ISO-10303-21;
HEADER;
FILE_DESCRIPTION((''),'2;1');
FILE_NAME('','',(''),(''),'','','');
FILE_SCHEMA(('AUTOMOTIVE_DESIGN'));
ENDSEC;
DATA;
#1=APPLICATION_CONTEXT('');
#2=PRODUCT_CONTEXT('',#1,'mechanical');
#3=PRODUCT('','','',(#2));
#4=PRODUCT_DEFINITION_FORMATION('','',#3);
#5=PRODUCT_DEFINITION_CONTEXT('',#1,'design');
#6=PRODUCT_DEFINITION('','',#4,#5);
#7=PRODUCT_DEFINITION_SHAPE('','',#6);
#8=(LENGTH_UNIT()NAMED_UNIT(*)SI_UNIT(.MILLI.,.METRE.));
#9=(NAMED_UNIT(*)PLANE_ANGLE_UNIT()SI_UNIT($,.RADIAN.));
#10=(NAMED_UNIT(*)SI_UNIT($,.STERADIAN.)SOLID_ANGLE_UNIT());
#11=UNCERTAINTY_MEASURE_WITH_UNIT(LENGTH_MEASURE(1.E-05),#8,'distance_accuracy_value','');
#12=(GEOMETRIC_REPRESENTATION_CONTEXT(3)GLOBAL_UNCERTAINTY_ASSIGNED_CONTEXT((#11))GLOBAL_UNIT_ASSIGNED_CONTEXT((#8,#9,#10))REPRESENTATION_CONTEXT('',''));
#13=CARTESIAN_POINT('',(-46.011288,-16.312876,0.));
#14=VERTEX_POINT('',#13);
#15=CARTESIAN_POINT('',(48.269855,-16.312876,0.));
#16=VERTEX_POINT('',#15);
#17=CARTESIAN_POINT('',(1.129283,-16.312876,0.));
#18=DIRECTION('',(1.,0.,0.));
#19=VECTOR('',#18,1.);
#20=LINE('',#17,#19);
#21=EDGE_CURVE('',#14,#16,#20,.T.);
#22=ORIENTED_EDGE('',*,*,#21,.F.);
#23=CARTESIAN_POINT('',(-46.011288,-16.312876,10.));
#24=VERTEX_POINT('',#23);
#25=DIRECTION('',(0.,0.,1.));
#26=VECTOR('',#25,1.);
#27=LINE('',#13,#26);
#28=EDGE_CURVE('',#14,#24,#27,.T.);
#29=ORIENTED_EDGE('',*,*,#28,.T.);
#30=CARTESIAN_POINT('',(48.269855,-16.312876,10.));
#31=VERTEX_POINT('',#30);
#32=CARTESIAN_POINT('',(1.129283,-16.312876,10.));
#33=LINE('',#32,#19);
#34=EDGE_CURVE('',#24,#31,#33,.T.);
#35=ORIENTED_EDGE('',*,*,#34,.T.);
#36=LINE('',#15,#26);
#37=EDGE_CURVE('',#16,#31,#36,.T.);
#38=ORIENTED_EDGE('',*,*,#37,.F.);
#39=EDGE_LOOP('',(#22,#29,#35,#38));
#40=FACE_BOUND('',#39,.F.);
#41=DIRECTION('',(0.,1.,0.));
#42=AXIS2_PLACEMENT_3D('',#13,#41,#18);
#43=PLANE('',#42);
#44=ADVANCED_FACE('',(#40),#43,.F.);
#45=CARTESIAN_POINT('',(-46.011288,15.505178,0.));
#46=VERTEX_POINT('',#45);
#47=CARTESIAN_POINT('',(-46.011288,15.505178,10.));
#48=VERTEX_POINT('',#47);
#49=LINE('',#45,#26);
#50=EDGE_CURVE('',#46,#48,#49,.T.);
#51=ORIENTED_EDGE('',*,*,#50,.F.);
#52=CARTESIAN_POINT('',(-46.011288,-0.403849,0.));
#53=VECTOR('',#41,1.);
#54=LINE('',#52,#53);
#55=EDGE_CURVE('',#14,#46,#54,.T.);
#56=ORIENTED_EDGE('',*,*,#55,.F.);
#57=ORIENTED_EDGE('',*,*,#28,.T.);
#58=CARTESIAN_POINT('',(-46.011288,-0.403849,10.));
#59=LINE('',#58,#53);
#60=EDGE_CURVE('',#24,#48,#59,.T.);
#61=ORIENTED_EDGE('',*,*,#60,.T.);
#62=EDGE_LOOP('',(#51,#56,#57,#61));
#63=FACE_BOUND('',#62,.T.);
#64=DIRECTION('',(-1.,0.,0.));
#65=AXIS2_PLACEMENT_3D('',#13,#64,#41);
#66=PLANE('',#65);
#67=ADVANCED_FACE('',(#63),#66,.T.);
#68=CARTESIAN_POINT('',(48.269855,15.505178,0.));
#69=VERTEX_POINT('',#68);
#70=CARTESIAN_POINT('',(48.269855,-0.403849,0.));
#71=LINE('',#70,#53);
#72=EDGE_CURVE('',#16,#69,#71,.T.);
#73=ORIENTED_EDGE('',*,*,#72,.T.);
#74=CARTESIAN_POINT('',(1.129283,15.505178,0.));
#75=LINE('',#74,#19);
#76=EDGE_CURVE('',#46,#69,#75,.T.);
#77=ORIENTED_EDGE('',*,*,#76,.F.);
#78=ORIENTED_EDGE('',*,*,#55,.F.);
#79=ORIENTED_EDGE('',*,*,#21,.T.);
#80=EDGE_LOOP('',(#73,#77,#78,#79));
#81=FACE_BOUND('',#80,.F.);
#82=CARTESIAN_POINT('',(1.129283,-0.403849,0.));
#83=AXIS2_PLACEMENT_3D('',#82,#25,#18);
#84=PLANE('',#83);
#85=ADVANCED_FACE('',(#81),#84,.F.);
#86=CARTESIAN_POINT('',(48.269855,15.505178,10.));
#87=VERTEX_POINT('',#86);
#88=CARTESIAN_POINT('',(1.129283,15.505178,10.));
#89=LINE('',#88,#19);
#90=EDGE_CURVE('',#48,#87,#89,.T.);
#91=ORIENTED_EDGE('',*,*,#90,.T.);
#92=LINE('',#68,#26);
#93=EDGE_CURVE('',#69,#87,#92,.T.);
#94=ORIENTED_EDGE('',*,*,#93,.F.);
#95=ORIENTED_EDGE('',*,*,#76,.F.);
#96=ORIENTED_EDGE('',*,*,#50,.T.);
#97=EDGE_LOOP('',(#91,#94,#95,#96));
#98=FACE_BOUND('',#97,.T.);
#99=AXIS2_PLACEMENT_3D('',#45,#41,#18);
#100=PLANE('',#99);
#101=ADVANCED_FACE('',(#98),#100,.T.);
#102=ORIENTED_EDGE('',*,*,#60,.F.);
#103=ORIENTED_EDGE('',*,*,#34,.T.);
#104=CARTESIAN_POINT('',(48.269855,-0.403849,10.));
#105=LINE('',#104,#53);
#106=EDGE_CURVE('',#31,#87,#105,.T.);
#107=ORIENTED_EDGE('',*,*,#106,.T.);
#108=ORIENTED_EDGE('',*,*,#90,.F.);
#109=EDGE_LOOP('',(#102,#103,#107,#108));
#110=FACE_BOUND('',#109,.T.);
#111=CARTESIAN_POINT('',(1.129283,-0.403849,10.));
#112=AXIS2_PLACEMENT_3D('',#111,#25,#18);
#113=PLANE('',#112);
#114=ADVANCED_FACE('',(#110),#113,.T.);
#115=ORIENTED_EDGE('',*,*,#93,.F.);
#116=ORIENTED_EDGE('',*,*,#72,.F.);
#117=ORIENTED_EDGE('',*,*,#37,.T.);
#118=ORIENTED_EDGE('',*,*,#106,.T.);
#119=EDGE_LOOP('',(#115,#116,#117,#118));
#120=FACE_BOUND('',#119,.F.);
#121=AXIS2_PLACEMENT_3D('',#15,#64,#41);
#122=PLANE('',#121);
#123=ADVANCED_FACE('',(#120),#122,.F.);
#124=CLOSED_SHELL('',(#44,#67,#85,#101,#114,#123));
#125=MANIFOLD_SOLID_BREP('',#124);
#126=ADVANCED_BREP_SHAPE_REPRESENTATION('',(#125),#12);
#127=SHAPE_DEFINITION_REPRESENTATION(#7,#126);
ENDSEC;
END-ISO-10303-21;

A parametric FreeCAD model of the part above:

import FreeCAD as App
import Part
import Sketcher

V = App.Vector
Q = App.Units.Quantity


def add_polygon(sketch, points):
    """Adds a closed chain of lines whose ends are joined by coincident constraints."""
    first, n = sketch.GeometryCount, len(points)
    for a, b in zip(points, points[1:] + points[:1]):
        sketch.addGeometry(Part.LineSegment(App.Vector(*a, 0), App.Vector(*b, 0)), False)
    for i in range(n):
        sketch.addConstraint(Sketcher.Constraint("Coincident", first + i, 2, first + (i + 1) % n, 1))

doc = App.newDocument("Part")
body = doc.addObject("PartDesign::Body", "Body")

# Sketch on XY plane
sketch1 = body.newObject("Sketcher::SketchObject", "Sketch")
sketch1.AttachmentSupport = (doc.getObject("XY_Plane"), [""])
sketch1.MapMode = "FlatFace"
add_polygon(sketch1, [(-46, 16), (-46, -16), (48, -16), (48, 16)])  # lines 0-3
sketch1.addConstraint([
    Sketcher.Constraint("Vertical", 0),
    Sketcher.Constraint("Horizontal", 1),
    Sketcher.Constraint("Vertical", 2),
    Sketcher.Constraint("Horizontal", 3),
    Sketcher.Constraint("DistanceX", 1, 1, 1, 2, Q("94.281143 mm")),
    Sketcher.Constraint("DistanceY", 0, 2, 0, 1, Q("31.818053 mm")),
    Sketcher.Constraint("DistanceX", 0, 2, -1, 1, Q("46.011288 mm")),
    Sketcher.Constraint("DistanceY", 0, 2, -1, 1, Q("16.312876 mm")),
])
pad1 = body.newObject("PartDesign::Pad", "Pad")
pad1.Profile = sketch1
pad1.Length = 10

doc.recompute()
